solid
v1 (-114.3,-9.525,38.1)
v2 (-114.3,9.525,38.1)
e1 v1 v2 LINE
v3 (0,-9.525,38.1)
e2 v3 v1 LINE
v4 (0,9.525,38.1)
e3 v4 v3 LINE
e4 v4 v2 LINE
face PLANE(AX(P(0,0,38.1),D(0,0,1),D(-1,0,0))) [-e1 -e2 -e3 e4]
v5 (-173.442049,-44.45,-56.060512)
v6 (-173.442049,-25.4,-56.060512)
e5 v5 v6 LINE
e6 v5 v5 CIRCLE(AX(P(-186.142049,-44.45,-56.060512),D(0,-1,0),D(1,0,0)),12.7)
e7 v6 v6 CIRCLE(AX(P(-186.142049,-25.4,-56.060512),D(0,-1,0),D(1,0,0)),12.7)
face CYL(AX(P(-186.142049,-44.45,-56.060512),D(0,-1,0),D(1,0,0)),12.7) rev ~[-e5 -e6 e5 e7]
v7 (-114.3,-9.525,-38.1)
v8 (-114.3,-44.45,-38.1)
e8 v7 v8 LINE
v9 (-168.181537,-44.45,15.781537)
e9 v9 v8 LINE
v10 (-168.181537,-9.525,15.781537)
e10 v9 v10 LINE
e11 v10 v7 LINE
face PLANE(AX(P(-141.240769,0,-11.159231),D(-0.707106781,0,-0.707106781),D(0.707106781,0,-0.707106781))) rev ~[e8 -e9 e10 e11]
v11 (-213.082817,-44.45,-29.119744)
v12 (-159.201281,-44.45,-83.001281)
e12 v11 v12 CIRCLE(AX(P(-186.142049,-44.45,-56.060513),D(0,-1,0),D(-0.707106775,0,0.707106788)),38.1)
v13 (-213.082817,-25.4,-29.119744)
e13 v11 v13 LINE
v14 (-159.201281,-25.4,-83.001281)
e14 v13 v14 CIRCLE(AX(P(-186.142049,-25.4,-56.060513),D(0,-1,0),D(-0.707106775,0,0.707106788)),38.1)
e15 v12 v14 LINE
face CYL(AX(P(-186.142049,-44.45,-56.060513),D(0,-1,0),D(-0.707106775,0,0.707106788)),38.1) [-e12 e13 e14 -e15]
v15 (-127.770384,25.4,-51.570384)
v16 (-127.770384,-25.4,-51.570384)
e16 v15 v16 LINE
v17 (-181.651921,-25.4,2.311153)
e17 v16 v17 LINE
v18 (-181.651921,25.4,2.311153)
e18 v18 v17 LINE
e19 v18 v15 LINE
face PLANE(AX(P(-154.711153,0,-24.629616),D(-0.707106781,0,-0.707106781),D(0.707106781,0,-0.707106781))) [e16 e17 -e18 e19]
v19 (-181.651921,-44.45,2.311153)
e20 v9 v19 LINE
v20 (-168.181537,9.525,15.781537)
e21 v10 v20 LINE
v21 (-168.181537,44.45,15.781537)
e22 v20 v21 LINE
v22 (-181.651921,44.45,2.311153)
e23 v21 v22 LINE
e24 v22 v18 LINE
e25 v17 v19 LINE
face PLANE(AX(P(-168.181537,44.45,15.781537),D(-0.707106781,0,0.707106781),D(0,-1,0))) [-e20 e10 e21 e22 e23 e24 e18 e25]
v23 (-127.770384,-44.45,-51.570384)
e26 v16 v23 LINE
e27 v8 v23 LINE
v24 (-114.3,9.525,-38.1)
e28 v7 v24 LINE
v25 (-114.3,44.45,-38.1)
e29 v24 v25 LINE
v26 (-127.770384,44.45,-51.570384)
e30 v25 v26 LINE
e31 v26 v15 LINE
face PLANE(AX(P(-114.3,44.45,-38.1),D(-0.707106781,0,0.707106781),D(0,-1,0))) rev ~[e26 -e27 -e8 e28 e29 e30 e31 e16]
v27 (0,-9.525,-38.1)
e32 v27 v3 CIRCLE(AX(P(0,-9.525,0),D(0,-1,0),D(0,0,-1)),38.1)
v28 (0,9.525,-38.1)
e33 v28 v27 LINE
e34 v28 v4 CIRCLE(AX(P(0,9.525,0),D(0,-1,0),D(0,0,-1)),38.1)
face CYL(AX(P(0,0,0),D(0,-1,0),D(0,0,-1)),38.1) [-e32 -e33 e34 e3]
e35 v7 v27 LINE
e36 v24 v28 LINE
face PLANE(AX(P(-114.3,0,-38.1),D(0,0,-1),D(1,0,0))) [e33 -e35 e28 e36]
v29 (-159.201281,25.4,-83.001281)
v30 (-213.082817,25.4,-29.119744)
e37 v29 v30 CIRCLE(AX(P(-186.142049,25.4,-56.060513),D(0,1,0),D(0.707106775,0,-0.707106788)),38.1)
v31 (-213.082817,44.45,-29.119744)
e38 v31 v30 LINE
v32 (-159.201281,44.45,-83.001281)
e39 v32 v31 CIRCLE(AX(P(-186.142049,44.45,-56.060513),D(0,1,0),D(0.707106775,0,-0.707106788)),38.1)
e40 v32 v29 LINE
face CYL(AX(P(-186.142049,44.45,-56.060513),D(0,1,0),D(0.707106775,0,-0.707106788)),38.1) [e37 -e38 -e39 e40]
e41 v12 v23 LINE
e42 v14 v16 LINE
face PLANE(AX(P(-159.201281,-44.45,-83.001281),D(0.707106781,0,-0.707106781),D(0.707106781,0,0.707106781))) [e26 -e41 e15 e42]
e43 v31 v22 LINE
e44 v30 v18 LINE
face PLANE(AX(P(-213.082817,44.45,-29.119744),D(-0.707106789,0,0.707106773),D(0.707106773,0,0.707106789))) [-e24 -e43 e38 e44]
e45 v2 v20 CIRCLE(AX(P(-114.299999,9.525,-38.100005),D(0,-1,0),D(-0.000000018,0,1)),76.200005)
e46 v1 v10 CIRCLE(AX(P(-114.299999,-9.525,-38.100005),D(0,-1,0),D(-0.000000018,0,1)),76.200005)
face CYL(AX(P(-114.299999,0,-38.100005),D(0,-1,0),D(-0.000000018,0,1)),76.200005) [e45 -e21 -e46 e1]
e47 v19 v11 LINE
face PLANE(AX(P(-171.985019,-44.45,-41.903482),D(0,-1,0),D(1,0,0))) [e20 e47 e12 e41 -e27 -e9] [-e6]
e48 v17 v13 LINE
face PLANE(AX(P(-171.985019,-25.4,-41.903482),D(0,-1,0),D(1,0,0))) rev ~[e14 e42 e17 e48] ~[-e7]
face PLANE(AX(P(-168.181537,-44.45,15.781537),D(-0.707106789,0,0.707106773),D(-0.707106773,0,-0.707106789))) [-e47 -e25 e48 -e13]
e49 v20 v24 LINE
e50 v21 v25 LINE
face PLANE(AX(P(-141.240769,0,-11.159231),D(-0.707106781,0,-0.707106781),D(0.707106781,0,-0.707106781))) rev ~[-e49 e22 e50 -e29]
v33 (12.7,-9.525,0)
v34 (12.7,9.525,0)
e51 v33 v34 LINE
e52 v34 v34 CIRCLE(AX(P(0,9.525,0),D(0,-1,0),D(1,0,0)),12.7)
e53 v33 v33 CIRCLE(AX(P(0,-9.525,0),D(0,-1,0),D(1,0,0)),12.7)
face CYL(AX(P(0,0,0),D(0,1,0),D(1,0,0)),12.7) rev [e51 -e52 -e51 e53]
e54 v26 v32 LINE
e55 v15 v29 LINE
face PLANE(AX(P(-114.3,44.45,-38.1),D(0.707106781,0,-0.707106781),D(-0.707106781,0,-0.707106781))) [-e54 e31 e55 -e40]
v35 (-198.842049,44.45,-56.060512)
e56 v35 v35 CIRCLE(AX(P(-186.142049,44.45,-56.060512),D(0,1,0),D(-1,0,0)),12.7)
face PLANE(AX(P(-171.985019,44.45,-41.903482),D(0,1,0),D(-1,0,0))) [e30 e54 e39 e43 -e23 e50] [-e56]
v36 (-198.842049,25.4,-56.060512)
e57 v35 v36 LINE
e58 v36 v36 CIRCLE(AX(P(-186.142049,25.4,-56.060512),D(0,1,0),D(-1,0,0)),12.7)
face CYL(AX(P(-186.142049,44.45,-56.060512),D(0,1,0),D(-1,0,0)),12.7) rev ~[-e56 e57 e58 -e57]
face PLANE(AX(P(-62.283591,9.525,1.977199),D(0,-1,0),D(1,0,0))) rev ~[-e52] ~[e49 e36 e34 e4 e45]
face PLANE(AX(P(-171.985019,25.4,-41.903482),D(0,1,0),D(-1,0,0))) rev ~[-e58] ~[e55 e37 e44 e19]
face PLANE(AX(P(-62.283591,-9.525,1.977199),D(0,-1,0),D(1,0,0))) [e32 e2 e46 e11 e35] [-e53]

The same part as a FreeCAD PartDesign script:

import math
import FreeCAD as App
import Part
import Sketcher
from FreeCAD import Vector
Q = App.Units.Quantity


def add_polygon(sketch, points):
    """Adds a closed chain of lines whose ends are joined by coincident constraints."""
    first, n = sketch.GeometryCount, len(points)
    for a, b in zip(points, points[1:] + points[:1]):
        sketch.addGeometry(Part.LineSegment(App.Vector(*a, 0), App.Vector(*b, 0)), False)
    for i in range(n):
        sketch.addConstraint(Sketcher.Constraint("Coincident", first + i, 2, first + (i + 1) % n, 1))

doc = App.newDocument("Part")
body = doc.addObject("PartDesign::Body", "Body")

# Sketch on XZ plane
sketch1 = doc.addObject("Sketcher::SketchObject", "Sketch")
body.addObject(sketch1)
sketch1.AttachmentSupport = (doc.XZ_Plane, [""])
sketch1.MapMode = "FlatFace"
sketch1.addGeometry([
    Part.LineSegment(Vector(-114, -38, 0), Vector(0, -38, 0)),  # 0
    Part.ArcOfCircle(Part.Circle(Vector(0, 0, 0), Vector(0, 0, 1), 38), math.radians(-90), math.radians(90)),  # 1
    Part.LineSegment(Vector(0, 38, 0), Vector(-114, 38, 0)),  # 2
    Part.ArcOfCircle(Part.Circle(Vector(-114, -38, 0), Vector(0, 0, 1), 76), math.radians(90), math.radians(135)),  # 3
    Part.LineSegment(Vector(-168, 16, 0), Vector(-114, -38, 0)),  # 4
    Part.Circle(Vector(0, 0, 0), Vector(0, 0, 1), 13),  # 5
], False)
sketch1.addConstraint([
    Sketcher.Constraint("Tangent", 0, 2, 1, 1),
    Sketcher.Constraint("Tangent", 1, 2, 2, 1),
    Sketcher.Constraint("Tangent", 2, 2, 3, 1),
    Sketcher.Constraint("Coincident", 3, 2, 4, 1),
    Sketcher.Constraint("Coincident", 4, 2, 0, 1),
    Sketcher.Constraint("Horizontal", 0),
    Sketcher.Constraint("Horizontal", 2),
    Sketcher.Constraint("Coincident", 1, 3, -1, 1),
    Sketcher.Constraint("Coincident", 5, 3, -1, 1),
    Sketcher.Constraint("Coincident", 4, 2, 3, 3),
    Sketcher.Constraint("Diameter", 5, Q("1 in")),
    Sketcher.Constraint("Radius", 3, Q("3.0000002 in")),
    Sketcher.Constraint("DistanceX", 0, 1, 0, 2, Q("4.5 in")),
    Sketcher.Constraint("Angle", 4, Q("-45 deg")),
])
pad1 = doc.addObject("PartDesign::Pad", "Pad")
body.addObject(pad1)
pad1.Profile = sketch1
pad1.Length = Q("0.75 in")
pad1.Midplane = True

# Sketch on an angled plane
sketch2 = doc.addObject("Sketcher::SketchObject", "Sketch001")
body.addObject(sketch2)
sketch2.Placement = App.Placement(Vector(-76.2, 0, -76.2), App.Rotation(Vector(0.707106781, 0, -0.707106781), Vector(0, -0.999999999, 0), Vector(-0.707106781, 0, -0.707106781), "ZXY"))
add_polygon(sketch2, [(-130, 44), (-130, -44), (-54, -44), (-54, 44)])  # lines 0-3
sketch2.addConstraint([
    Sketcher.Constraint("Vertical", 0),
    Sketcher.Constraint("Horizontal", 1),
    Sketcher.Constraint("Vertical", 2),
    Sketcher.Constraint("Horizontal", 3),
    Sketcher.Constraint("DistanceX", 1, 1, 1, 2, Q("3 in")),
    Sketcher.Constraint("DistanceY", 0, 2, 0, 1, Q("3.5 in")),
    Sketcher.Constraint("DistanceY", 0, 2, -1, 1, Q("1.75 in")),
    Sketcher.Constraint("DistanceX", 0, 2, -1, 1, 130.081537),
])
pad2 = doc.addObject("PartDesign::Pad", "Pad001")
body.addObject(pad2)
pad2.Profile = sketch2
pad2.Length = Q("0.75 in")

# Sketch on XZ plane
sketch3 = doc.addObject("Sketcher::SketchObject", "Sketch002")
body.addObject(sketch3)
sketch3.AttachmentSupport = (doc.XZ_Plane, [""])
sketch3.MapMode = "FlatFace"
sketch3.AttachmentOffset = App.Placement(Vector(0, 0, 1.75 * 25.4), App.Rotation())
sketch3.addGeometry([
    Part.ArcOfCircle(Part.Circle(Vector(-186, -56, 0), Vector(0, 0, 1), 38), math.radians(135), math.radians(315)),  # 0
    Part.LineSegment(Vector(-159, -83, 0), Vector(-114, -38, 0)),  # 1
    Part.LineSegment(Vector(-114, -38, 0), Vector(-168, 16, 0)),  # 2
    Part.LineSegment(Vector(-168, 16, 0), Vector(-213, -29, 0)),  # 3
    Part.Circle(Vector(-186, -56, 0), Vector(0, 0, 1), 13),  # 4
], False)
sketch3.addConstraint([
    Sketcher.Constraint("Tangent", 0, 2, 1, 1),
    Sketcher.Constraint("Coincident", 1, 2, 2, 1),
    Sketcher.Constraint("Coincident", 2, 2, 3, 1),
    Sketcher.Constraint("Tangent", 3, 2, 0, 1),
    Sketcher.Constraint("Coincident", 4, 3, 0, 3),
    Sketcher.Constraint("Perpendicular", 1, 2),
    Sketcher.Constraint("Perpendicular", 2, 3),
    Sketcher.Constraint("Diameter", 4, Q("1 in")),
    Sketcher.Constraint("Radius", 0, Q("1.5 in")),
    Sketcher.Constraint("Angle", 1, Q("45 deg")),
    Sketcher.Constraint("Distance", 1, Q("2.5 in")),
    Sketcher.Constraint("DistanceX", 1, 2, -1, 1, Q("4.5 in")),
    Sketcher.Constraint("DistanceY", 1, 2, -1, 1, Q("1.5 in")),
])
pad3 = doc.addObject("PartDesign::Pad", "Pad002")
body.addObject(pad3)
pad3.Profile = sketch3
pad3.Length = Q("0.75 in")
pad3.Reversed = True

# Sketch on XZ plane
sketch4 = doc.addObject("Sketcher::SketchObject", "Sketch003")
body.addObject(sketch4)
sketch4.AttachmentSupport = (doc.XZ_Plane, [""])
sketch4.MapMode = "FlatFace"
sketch4.AttachmentOffset = App.Placement(Vector(0, 0, -1.75 * 25.4), App.Rotation())
sketch4.addGeometry([
    Part.LineSegment(Vector(-213, -29, 0), Vector(-168, 16, 0)),  # 0
    Part.LineSegment(Vector(-168, 16, 0), Vector(-114, -38, 0)),  # 1
    Part.LineSegment(Vector(-114, -38, 0), Vector(-159, -83, 0)),  # 2
    Part.ArcOfCircle(Part.Circle(Vector(-186, -56, 0), Vector(0, 0, 1), 38), math.radians(135), math.radians(315)),  # 3
    Part.Circle(Vector(-186, -56, 0), Vector(0, 0, 1), 13),  # 4
], False)
sketch4.addConstraint([
    Sketcher.Constraint("Coincident", 0, 2, 1, 1),
    Sketcher.Constraint("Coincident", 1, 2, 2, 1),
    Sketcher.Constraint("Tangent", 2, 2, 3, 2),
    Sketcher.Constraint("Tangent", 3, 1, 0, 1),
    Sketcher.Constraint("Coincident", 4, 3, 3, 3),
    Sketcher.Constraint("Perpendicular", 0, 1),
    Sketcher.Constraint("Perpendicular", 1, 2),
    Sketcher.Constraint("Diameter", 4, Q("1 in")),
    Sketcher.Constraint("Radius", 3, Q("1.5 in")),
    Sketcher.Constraint("Angle", 0, Q("45.000001 deg")),
    Sketcher.Constraint("Distance", 0, Q("2.5 in")),
    Sketcher.Constraint("DistanceX", 1, 2, -1, 1, Q("4.5 in")),
    Sketcher.Constraint("DistanceY", 1, 2, -1, 1, Q("1.5 in")),
])
pad4 = doc.addObject("PartDesign::Pad", "Pad003")
body.addObject(pad4)
pad4.Profile = sketch4
pad4.Length = Q("0.75 in")

doc.recompute()
